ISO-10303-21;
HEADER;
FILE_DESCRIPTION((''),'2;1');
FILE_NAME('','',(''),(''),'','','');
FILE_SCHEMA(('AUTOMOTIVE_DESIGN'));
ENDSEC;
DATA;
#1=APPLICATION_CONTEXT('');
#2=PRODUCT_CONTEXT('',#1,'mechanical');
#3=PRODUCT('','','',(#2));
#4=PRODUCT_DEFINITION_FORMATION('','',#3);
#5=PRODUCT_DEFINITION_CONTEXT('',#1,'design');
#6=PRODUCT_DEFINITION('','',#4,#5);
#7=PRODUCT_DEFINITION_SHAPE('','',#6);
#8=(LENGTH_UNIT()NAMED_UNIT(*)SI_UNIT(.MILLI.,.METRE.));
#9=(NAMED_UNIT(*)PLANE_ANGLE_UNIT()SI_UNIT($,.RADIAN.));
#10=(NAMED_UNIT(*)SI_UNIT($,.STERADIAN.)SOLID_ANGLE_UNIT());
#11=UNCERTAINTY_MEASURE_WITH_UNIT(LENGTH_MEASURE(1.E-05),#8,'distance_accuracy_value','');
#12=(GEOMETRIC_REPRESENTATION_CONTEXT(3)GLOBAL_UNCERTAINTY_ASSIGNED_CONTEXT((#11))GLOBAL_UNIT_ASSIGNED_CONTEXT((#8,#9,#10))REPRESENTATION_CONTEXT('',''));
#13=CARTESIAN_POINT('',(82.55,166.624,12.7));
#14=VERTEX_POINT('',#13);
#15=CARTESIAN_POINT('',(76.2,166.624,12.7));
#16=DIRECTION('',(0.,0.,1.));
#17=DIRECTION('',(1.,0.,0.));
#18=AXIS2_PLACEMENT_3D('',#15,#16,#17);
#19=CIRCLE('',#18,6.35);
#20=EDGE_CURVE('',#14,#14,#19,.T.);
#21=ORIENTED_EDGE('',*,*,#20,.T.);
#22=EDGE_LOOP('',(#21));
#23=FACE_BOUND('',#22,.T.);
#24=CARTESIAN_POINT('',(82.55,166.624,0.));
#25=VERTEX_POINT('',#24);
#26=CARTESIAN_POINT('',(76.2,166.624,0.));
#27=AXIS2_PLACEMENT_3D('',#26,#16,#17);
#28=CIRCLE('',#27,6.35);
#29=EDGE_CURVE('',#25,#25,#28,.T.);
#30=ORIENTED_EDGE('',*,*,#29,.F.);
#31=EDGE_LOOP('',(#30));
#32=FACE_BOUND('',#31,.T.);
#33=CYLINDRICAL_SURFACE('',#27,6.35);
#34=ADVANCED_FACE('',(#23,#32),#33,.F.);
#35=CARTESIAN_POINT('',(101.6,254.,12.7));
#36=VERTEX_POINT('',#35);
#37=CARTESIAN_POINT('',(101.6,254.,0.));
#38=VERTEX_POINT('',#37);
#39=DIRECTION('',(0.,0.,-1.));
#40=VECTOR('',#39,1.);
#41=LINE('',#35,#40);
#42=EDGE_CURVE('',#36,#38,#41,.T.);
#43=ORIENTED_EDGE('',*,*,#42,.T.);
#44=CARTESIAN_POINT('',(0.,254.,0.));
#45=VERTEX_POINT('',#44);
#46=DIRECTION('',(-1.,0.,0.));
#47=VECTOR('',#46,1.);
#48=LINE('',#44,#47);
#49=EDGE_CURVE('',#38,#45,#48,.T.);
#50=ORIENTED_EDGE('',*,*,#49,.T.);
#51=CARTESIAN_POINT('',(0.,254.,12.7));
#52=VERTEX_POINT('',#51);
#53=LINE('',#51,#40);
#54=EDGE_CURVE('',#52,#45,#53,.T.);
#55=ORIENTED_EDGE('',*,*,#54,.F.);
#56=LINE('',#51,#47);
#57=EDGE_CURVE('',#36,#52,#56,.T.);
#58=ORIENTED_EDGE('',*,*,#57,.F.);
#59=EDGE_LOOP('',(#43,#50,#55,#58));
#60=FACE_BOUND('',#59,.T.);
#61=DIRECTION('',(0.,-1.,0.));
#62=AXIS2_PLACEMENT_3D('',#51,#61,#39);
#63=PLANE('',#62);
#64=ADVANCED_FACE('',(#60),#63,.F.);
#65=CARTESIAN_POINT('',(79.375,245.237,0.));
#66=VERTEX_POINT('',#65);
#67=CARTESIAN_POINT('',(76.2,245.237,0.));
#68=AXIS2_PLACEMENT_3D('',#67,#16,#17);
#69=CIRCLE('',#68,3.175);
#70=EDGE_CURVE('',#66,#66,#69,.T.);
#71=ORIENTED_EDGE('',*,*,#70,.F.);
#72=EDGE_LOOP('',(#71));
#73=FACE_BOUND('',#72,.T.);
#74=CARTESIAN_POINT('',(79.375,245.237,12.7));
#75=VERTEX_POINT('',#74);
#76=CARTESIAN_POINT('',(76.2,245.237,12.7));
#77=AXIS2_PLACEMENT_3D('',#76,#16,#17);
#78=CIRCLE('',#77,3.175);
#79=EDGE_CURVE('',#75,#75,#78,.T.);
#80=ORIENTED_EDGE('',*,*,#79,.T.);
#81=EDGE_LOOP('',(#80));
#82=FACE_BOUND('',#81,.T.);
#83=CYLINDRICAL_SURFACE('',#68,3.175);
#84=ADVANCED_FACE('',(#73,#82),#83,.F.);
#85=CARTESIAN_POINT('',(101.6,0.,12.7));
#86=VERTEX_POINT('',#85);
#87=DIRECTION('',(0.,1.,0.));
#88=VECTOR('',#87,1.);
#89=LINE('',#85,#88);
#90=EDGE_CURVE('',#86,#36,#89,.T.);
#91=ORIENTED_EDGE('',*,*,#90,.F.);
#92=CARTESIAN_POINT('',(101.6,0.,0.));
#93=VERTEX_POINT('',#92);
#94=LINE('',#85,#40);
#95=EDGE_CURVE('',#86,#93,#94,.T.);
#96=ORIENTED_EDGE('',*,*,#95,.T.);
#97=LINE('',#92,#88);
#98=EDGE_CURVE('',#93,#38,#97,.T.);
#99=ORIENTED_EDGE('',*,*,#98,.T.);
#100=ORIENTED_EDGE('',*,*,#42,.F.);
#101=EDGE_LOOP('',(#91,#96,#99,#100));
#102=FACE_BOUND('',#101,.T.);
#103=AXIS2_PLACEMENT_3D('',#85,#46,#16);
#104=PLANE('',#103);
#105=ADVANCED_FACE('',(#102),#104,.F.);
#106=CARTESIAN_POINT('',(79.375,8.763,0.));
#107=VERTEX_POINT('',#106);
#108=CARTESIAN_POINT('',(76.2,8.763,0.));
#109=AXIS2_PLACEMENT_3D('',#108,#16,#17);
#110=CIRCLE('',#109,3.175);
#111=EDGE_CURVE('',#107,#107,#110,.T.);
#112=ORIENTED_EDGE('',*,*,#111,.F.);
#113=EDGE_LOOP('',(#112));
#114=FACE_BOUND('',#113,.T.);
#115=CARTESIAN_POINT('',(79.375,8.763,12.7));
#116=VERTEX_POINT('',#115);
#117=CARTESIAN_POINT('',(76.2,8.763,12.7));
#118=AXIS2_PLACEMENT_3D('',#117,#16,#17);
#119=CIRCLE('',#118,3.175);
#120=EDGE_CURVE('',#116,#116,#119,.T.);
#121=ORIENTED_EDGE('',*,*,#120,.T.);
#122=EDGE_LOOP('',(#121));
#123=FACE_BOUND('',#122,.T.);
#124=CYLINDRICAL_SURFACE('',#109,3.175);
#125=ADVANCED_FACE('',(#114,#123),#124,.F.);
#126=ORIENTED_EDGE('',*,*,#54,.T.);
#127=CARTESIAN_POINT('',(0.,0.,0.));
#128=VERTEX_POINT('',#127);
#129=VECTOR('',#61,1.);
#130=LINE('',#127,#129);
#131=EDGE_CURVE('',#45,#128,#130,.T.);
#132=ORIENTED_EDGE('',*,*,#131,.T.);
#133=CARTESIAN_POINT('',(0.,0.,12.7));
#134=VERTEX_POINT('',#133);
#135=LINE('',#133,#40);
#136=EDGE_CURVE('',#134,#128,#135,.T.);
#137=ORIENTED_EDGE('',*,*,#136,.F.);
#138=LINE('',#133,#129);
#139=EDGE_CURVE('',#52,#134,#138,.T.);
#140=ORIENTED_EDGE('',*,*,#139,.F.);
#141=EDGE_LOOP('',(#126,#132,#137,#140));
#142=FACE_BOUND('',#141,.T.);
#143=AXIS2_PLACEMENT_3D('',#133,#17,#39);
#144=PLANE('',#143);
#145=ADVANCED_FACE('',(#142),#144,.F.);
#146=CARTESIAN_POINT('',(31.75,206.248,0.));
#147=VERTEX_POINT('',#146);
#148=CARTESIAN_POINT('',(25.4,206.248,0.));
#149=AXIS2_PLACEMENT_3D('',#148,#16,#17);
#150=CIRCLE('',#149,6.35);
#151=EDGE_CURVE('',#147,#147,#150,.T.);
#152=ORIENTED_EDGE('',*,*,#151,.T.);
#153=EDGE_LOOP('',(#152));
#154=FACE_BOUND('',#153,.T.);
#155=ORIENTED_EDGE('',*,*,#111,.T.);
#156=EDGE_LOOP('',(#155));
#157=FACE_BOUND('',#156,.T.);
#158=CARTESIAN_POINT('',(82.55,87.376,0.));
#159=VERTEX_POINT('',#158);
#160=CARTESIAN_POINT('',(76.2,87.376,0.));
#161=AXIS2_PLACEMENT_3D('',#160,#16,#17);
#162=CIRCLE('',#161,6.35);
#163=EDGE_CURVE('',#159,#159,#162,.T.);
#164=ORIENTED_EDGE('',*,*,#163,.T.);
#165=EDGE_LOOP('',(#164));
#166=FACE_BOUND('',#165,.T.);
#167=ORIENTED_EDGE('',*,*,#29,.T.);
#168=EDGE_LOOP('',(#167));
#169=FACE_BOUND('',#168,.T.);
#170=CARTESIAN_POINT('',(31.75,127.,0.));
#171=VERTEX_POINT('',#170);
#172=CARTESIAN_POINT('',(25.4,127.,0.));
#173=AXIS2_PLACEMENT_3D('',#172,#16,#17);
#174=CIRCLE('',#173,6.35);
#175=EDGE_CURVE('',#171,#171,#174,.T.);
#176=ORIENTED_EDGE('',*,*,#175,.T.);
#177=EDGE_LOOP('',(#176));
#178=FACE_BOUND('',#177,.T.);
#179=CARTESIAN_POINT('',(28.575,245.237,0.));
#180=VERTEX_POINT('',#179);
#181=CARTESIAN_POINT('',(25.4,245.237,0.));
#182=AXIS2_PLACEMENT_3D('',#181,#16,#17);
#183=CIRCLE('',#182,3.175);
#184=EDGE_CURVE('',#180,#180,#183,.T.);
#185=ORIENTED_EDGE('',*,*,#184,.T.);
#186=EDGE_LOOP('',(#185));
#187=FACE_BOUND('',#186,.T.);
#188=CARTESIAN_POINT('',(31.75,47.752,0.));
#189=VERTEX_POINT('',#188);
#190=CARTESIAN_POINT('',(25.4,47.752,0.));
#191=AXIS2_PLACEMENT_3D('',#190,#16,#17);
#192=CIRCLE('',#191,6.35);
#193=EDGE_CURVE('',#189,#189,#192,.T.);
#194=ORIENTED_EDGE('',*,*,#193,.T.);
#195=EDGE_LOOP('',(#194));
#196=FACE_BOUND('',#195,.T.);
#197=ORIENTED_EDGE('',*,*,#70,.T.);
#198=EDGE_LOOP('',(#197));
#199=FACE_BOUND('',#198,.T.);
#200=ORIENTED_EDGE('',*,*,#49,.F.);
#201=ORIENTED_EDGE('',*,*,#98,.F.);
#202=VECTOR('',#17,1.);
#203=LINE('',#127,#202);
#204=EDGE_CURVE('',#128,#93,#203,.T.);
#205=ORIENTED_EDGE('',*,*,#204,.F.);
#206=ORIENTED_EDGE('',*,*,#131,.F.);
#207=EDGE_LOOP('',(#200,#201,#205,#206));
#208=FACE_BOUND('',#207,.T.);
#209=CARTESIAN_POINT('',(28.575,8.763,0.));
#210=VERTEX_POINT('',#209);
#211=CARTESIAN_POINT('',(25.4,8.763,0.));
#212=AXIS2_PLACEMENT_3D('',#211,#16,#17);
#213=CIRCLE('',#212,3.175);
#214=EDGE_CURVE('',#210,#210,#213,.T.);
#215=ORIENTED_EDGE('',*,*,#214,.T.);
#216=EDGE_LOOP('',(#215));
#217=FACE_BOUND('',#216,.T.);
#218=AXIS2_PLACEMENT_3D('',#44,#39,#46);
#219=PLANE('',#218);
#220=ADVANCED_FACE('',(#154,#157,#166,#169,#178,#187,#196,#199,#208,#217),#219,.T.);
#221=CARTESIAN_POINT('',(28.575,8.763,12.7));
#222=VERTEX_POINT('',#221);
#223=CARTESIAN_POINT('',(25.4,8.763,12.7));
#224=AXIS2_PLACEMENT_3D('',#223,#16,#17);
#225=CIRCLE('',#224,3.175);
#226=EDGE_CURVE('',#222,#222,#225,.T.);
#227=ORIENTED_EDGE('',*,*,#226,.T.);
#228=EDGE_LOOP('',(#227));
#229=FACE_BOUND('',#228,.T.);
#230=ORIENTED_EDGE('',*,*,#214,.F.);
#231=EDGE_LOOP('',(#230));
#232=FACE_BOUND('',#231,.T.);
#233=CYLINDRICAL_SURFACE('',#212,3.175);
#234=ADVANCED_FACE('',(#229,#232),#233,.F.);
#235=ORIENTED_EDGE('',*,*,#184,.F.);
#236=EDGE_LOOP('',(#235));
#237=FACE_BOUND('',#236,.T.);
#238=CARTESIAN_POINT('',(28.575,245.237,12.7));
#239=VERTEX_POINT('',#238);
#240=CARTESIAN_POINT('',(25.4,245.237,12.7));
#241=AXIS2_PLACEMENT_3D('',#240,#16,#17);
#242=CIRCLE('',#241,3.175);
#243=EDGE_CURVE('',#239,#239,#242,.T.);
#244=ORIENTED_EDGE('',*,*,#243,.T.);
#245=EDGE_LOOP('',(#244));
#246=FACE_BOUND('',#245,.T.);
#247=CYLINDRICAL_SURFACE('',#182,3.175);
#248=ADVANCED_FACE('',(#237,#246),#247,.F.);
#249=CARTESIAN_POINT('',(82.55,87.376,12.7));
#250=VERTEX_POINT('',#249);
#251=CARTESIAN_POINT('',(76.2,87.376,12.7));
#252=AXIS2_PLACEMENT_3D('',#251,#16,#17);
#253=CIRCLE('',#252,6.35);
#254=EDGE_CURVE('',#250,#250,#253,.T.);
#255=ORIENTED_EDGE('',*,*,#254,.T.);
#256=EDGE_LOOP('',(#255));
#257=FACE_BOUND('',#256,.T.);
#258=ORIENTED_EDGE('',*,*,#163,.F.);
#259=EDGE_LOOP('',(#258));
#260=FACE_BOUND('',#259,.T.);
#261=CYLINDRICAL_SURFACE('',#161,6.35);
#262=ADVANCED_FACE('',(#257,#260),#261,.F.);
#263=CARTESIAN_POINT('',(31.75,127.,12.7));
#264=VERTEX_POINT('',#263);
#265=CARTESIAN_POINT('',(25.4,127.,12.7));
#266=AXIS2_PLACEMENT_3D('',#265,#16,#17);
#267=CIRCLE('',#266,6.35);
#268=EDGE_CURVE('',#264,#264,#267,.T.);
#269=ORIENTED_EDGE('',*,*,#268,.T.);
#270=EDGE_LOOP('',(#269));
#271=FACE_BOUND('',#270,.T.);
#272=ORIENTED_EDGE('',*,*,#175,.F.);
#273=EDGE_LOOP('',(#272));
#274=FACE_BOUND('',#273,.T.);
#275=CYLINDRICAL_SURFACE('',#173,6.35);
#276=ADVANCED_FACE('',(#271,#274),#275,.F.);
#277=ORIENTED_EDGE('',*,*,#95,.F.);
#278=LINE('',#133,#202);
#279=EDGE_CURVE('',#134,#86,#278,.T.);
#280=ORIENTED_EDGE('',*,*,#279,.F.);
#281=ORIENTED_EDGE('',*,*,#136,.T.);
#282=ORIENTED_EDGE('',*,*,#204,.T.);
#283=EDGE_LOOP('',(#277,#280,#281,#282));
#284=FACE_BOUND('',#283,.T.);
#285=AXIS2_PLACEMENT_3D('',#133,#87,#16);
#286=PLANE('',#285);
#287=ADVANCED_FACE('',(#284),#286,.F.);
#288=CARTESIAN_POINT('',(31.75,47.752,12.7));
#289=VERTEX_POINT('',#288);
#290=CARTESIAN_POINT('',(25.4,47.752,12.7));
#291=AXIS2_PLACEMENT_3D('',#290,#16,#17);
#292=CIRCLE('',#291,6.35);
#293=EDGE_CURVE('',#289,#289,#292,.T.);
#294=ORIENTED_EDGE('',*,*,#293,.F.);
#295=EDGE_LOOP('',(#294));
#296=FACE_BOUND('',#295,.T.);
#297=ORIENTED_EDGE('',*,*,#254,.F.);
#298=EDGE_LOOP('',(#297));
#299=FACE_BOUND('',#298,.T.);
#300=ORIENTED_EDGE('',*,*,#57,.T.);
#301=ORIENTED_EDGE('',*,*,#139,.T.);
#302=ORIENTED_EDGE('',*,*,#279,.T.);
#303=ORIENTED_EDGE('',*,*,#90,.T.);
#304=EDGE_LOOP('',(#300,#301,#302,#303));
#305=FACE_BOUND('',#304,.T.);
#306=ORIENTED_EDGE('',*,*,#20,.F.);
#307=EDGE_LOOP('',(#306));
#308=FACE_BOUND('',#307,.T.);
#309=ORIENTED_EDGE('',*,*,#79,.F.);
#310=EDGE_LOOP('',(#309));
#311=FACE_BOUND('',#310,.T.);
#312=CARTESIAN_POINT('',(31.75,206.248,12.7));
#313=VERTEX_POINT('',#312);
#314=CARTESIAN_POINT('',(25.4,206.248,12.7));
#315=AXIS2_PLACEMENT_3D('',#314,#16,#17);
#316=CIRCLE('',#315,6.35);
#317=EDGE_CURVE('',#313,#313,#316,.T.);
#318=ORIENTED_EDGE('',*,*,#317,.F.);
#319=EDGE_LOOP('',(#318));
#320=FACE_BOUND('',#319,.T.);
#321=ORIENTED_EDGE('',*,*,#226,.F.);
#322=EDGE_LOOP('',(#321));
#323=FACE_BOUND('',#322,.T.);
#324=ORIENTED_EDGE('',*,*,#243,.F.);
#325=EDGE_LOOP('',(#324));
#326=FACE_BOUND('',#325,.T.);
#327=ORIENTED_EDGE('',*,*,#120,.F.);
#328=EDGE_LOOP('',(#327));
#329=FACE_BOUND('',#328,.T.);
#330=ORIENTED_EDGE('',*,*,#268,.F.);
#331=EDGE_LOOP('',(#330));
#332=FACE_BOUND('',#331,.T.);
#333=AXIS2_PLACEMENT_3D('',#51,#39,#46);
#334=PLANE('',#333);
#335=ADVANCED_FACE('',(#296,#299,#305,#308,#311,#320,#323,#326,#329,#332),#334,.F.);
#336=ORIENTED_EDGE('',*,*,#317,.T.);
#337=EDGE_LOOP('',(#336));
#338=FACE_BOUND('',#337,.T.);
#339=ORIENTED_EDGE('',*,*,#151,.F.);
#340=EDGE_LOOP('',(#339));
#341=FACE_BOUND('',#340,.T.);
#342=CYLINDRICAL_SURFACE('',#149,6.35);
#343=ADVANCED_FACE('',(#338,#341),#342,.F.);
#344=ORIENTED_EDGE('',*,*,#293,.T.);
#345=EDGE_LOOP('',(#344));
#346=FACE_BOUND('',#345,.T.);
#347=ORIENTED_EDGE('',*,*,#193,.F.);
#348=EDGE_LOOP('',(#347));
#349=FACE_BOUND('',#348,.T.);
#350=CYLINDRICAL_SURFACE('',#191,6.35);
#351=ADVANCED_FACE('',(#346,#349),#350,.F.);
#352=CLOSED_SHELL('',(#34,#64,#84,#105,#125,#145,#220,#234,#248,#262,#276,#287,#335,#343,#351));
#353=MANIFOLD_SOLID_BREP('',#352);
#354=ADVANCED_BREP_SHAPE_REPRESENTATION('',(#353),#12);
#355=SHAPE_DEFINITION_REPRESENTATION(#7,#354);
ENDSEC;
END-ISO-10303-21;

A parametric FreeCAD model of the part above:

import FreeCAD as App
import Part
import Sketcher
Q = App.Units.Quantity

doc = App.newDocument("Part")
params = doc.addObject("Spreadsheet::Sheet", "Params")
for row, (alias, value) in enumerate([
    ("sketch1_width", "4 in"),
    ("sketch1_height", "10 in"),
    ("pad1_length", "0.5 in"),
    ("sketch2_diameter", "0.5 in"),
    ("sketch2_diameter2", "0.25 in"),
], start=1):
    params.set(f"A{row}", alias)
    params.set(f"B{row}", "=" + value)
    params.setAlias(f"B{row}", alias)

body = doc.addObject("PartDesign::Body", "Body")

sketch1 = doc.addObject("Sketcher::SketchObject", "Sketch")
body.addObject(sketch1)
sketch1.AttachmentSupport = (doc.XY_Plane, [""])
sketch1.MapMode = "FlatFace"
sketch1.addGeometry(Part.LineSegment(App.Vector(0, 254, 0), App.Vector(0, 0, 0)), False)
sketch1.addGeometry(Part.LineSegment(App.Vector(0, 0, 0), App.Vector(101.6, 0, 0)), False)
sketch1.addGeometry(Part.LineSegment(App.Vector(101.6, 0, 0), App.Vector(101.6, 254, 0)), False)
sketch1.addGeometry(Part.LineSegment(App.Vector(101.6, 254, 0), App.Vector(0, 254, 0)), False)
sketch1.addConstraint(Sketcher.Constraint("Coincident", 0, 2, 1, 1))
sketch1.addConstraint(Sketcher.Constraint("Coincident", 1, 2, 2, 1))
sketch1.addConstraint(Sketcher.Constraint("Coincident", 2, 2, 3, 1))
sketch1.addConstraint(Sketcher.Constraint("Coincident", 3, 2, 0, 1))
sketch1.addConstraint(Sketcher.Constraint("Vertical", 0))
sketch1.addConstraint(Sketcher.Constraint("Horizontal", 1))
sketch1.addConstraint(Sketcher.Constraint("Vertical", 2))
sketch1.addConstraint(Sketcher.Constraint("Horizontal", 3))
sketch1.addConstraint(Sketcher.Constraint("Coincident", 0, 2, -1, 1))
sketch1.addConstraint(Sketcher.Constraint("DistanceX", 1, 1, 1, 2, Q("4 in")))
sketch1.addConstraint(Sketcher.Constraint("DistanceY", 0, 2, 0, 1, Q("10 in")))
sketch1.setExpression("Constraints[9]", "Params.sketch1_width")
sketch1.setExpression("Constraints[10]", "Params.sketch1_height")
pad1 = doc.addObject("PartDesign::Pad", "Pad")
body.addObject(pad1)
pad1.Profile = sketch1
pad1.setExpression("Length", "Params.pad1_length")

sketch2 = doc.addObject("Sketcher::SketchObject", "Sketch001")
body.addObject(sketch2)
sketch2.AttachmentSupport = (doc.XY_Plane, [""])
sketch2.MapMode = "FlatFace"
sketch2.AttachmentOffset = App.Placement(App.Vector(0, 0, 0.5 * 25.4), App.Rotation())
sketch2.addGeometry(Part.Circle(App.Vector(25.4, 47.752, 0), App.Vector(0, 0, 1), 6.35), False)
sketch2.addGeometry(Part.Circle(App.Vector(76.2, 87.376, 0), App.Vector(0, 0, 1), 6.35), False)
sketch2.addGeometry(Part.Circle(App.Vector(25.4, 127, 0), App.Vector(0, 0, 1), 6.35), False)
sketch2.addGeometry(Part.Circle(App.Vector(76.2, 166.624, 0), App.Vector(0, 0, 1), 6.35), False)
sketch2.addGeometry(Part.Circle(App.Vector(25.4, 206.248, 0), App.Vector(0, 0, 1), 6.35), False)
sketch2.addGeometry(Part.Circle(App.Vector(25.4, 8.763, 0), App.Vector(0, 0, 1), 3.175), False)
sketch2.addGeometry(Part.Circle(App.Vector(76.2, 8.763, 0), App.Vector(0, 0, 1), 3.175), False)
sketch2.addGeometry(Part.Circle(App.Vector(25.4, 245.237, 0), App.Vector(0, 0, 1), 3.175), False)
sketch2.addGeometry(Part.Circle(App.Vector(76.2, 245.237, 0), App.Vector(0, 0, 1), 3.175), False)
sketch2.addConstraint(Sketcher.Constraint("Equal", 0, 1))
sketch2.addConstraint(Sketcher.Constraint("Equal", 1, 2))
sketch2.addConstraint(Sketcher.Constraint("Equal", 2, 3))
sketch2.addConstraint(Sketcher.Constraint("Equal", 3, 4))
sketch2.addConstraint(Sketcher.Constraint("Equal", 5, 6))
sketch2.addConstraint(Sketcher.Constraint("Equal", 6, 7))
sketch2.addConstraint(Sketcher.Constraint("Equal", 7, 8))
sketch2.addConstraint(Sketcher.Constraint("Horizontal", 5, 3, 6, 3))
sketch2.addConstraint(Sketcher.Constraint("Horizontal", 7, 3, 8, 3))
sketch2.addConstraint(Sketcher.Constraint("Vertical", 0, 3, 2, 3))
sketch2.addConstraint(Sketcher.Constraint("Vertical", 1, 3, 3, 3))
sketch2.addConstraint(Sketcher.Constraint("Vertical", 2, 3, 4, 3))
sketch2.addConstraint(Sketcher.Constraint("Vertical", 4, 3, 5, 3))
sketch2.addConstraint(Sketcher.Constraint("Vertical", 3, 3, 6, 3))
sketch2.addConstraint(Sketcher.Constraint("Vertical", 5, 3, 7, 3))
sketch2.addConstraint(Sketcher.Constraint("Vertical", 6, 3, 8, 3))
sketch2.addConstraint(Sketcher.Constraint("Diameter", 0, Q("0.5 in")))
sketch2.addConstraint(Sketcher.Constraint("Diameter", 5, Q("0.25 in")))
sketch2.addConstraint(Sketcher.Constraint("DistanceX", -1, 1, 0, 3, Q("1 in")))
sketch2.addConstraint(Sketcher.Constraint("DistanceX", -1, 1, 1, 3, Q("3 in")))
sketch2.addConstraint(Sketcher.Constraint("DistanceY", -1, 1, 2, 3, Q("5 in")))
sketch2.addConstraint(Sketcher.Constraint("DistanceY", -1, 1, 0, 3, Q("1.88 in")))
sketch2.addConstraint(Sketcher.Constraint("DistanceY", -1, 1, 1, 3, Q("3.44 in")))
sketch2.addConstraint(Sketcher.Constraint("DistanceY", -1, 1, 3, 3, Q("6.56 in")))
sketch2.addConstraint(Sketcher.Constraint("DistanceY", -1, 1, 4, 3, Q("8.12 in")))
sketch2.addConstraint(Sketcher.Constraint("DistanceY", -1, 1, 5, 3, Q("0.345 in")))
sketch2.addConstraint(Sketcher.Constraint("DistanceY", -1, 1, 7, 3, Q("9.655 in")))
sketch2.setExpression("Constraints[16]", "Params.sketch2_diameter")
sketch2.setExpression("Constraints[17]", "Params.sketch2_diameter2")
pocket1 = doc.addObject("PartDesign::Pocket", "Pocket")
body.addObject(pocket1)
pocket1.Profile = sketch2
pocket1.Type = "ThroughAll"

doc.recompute()
